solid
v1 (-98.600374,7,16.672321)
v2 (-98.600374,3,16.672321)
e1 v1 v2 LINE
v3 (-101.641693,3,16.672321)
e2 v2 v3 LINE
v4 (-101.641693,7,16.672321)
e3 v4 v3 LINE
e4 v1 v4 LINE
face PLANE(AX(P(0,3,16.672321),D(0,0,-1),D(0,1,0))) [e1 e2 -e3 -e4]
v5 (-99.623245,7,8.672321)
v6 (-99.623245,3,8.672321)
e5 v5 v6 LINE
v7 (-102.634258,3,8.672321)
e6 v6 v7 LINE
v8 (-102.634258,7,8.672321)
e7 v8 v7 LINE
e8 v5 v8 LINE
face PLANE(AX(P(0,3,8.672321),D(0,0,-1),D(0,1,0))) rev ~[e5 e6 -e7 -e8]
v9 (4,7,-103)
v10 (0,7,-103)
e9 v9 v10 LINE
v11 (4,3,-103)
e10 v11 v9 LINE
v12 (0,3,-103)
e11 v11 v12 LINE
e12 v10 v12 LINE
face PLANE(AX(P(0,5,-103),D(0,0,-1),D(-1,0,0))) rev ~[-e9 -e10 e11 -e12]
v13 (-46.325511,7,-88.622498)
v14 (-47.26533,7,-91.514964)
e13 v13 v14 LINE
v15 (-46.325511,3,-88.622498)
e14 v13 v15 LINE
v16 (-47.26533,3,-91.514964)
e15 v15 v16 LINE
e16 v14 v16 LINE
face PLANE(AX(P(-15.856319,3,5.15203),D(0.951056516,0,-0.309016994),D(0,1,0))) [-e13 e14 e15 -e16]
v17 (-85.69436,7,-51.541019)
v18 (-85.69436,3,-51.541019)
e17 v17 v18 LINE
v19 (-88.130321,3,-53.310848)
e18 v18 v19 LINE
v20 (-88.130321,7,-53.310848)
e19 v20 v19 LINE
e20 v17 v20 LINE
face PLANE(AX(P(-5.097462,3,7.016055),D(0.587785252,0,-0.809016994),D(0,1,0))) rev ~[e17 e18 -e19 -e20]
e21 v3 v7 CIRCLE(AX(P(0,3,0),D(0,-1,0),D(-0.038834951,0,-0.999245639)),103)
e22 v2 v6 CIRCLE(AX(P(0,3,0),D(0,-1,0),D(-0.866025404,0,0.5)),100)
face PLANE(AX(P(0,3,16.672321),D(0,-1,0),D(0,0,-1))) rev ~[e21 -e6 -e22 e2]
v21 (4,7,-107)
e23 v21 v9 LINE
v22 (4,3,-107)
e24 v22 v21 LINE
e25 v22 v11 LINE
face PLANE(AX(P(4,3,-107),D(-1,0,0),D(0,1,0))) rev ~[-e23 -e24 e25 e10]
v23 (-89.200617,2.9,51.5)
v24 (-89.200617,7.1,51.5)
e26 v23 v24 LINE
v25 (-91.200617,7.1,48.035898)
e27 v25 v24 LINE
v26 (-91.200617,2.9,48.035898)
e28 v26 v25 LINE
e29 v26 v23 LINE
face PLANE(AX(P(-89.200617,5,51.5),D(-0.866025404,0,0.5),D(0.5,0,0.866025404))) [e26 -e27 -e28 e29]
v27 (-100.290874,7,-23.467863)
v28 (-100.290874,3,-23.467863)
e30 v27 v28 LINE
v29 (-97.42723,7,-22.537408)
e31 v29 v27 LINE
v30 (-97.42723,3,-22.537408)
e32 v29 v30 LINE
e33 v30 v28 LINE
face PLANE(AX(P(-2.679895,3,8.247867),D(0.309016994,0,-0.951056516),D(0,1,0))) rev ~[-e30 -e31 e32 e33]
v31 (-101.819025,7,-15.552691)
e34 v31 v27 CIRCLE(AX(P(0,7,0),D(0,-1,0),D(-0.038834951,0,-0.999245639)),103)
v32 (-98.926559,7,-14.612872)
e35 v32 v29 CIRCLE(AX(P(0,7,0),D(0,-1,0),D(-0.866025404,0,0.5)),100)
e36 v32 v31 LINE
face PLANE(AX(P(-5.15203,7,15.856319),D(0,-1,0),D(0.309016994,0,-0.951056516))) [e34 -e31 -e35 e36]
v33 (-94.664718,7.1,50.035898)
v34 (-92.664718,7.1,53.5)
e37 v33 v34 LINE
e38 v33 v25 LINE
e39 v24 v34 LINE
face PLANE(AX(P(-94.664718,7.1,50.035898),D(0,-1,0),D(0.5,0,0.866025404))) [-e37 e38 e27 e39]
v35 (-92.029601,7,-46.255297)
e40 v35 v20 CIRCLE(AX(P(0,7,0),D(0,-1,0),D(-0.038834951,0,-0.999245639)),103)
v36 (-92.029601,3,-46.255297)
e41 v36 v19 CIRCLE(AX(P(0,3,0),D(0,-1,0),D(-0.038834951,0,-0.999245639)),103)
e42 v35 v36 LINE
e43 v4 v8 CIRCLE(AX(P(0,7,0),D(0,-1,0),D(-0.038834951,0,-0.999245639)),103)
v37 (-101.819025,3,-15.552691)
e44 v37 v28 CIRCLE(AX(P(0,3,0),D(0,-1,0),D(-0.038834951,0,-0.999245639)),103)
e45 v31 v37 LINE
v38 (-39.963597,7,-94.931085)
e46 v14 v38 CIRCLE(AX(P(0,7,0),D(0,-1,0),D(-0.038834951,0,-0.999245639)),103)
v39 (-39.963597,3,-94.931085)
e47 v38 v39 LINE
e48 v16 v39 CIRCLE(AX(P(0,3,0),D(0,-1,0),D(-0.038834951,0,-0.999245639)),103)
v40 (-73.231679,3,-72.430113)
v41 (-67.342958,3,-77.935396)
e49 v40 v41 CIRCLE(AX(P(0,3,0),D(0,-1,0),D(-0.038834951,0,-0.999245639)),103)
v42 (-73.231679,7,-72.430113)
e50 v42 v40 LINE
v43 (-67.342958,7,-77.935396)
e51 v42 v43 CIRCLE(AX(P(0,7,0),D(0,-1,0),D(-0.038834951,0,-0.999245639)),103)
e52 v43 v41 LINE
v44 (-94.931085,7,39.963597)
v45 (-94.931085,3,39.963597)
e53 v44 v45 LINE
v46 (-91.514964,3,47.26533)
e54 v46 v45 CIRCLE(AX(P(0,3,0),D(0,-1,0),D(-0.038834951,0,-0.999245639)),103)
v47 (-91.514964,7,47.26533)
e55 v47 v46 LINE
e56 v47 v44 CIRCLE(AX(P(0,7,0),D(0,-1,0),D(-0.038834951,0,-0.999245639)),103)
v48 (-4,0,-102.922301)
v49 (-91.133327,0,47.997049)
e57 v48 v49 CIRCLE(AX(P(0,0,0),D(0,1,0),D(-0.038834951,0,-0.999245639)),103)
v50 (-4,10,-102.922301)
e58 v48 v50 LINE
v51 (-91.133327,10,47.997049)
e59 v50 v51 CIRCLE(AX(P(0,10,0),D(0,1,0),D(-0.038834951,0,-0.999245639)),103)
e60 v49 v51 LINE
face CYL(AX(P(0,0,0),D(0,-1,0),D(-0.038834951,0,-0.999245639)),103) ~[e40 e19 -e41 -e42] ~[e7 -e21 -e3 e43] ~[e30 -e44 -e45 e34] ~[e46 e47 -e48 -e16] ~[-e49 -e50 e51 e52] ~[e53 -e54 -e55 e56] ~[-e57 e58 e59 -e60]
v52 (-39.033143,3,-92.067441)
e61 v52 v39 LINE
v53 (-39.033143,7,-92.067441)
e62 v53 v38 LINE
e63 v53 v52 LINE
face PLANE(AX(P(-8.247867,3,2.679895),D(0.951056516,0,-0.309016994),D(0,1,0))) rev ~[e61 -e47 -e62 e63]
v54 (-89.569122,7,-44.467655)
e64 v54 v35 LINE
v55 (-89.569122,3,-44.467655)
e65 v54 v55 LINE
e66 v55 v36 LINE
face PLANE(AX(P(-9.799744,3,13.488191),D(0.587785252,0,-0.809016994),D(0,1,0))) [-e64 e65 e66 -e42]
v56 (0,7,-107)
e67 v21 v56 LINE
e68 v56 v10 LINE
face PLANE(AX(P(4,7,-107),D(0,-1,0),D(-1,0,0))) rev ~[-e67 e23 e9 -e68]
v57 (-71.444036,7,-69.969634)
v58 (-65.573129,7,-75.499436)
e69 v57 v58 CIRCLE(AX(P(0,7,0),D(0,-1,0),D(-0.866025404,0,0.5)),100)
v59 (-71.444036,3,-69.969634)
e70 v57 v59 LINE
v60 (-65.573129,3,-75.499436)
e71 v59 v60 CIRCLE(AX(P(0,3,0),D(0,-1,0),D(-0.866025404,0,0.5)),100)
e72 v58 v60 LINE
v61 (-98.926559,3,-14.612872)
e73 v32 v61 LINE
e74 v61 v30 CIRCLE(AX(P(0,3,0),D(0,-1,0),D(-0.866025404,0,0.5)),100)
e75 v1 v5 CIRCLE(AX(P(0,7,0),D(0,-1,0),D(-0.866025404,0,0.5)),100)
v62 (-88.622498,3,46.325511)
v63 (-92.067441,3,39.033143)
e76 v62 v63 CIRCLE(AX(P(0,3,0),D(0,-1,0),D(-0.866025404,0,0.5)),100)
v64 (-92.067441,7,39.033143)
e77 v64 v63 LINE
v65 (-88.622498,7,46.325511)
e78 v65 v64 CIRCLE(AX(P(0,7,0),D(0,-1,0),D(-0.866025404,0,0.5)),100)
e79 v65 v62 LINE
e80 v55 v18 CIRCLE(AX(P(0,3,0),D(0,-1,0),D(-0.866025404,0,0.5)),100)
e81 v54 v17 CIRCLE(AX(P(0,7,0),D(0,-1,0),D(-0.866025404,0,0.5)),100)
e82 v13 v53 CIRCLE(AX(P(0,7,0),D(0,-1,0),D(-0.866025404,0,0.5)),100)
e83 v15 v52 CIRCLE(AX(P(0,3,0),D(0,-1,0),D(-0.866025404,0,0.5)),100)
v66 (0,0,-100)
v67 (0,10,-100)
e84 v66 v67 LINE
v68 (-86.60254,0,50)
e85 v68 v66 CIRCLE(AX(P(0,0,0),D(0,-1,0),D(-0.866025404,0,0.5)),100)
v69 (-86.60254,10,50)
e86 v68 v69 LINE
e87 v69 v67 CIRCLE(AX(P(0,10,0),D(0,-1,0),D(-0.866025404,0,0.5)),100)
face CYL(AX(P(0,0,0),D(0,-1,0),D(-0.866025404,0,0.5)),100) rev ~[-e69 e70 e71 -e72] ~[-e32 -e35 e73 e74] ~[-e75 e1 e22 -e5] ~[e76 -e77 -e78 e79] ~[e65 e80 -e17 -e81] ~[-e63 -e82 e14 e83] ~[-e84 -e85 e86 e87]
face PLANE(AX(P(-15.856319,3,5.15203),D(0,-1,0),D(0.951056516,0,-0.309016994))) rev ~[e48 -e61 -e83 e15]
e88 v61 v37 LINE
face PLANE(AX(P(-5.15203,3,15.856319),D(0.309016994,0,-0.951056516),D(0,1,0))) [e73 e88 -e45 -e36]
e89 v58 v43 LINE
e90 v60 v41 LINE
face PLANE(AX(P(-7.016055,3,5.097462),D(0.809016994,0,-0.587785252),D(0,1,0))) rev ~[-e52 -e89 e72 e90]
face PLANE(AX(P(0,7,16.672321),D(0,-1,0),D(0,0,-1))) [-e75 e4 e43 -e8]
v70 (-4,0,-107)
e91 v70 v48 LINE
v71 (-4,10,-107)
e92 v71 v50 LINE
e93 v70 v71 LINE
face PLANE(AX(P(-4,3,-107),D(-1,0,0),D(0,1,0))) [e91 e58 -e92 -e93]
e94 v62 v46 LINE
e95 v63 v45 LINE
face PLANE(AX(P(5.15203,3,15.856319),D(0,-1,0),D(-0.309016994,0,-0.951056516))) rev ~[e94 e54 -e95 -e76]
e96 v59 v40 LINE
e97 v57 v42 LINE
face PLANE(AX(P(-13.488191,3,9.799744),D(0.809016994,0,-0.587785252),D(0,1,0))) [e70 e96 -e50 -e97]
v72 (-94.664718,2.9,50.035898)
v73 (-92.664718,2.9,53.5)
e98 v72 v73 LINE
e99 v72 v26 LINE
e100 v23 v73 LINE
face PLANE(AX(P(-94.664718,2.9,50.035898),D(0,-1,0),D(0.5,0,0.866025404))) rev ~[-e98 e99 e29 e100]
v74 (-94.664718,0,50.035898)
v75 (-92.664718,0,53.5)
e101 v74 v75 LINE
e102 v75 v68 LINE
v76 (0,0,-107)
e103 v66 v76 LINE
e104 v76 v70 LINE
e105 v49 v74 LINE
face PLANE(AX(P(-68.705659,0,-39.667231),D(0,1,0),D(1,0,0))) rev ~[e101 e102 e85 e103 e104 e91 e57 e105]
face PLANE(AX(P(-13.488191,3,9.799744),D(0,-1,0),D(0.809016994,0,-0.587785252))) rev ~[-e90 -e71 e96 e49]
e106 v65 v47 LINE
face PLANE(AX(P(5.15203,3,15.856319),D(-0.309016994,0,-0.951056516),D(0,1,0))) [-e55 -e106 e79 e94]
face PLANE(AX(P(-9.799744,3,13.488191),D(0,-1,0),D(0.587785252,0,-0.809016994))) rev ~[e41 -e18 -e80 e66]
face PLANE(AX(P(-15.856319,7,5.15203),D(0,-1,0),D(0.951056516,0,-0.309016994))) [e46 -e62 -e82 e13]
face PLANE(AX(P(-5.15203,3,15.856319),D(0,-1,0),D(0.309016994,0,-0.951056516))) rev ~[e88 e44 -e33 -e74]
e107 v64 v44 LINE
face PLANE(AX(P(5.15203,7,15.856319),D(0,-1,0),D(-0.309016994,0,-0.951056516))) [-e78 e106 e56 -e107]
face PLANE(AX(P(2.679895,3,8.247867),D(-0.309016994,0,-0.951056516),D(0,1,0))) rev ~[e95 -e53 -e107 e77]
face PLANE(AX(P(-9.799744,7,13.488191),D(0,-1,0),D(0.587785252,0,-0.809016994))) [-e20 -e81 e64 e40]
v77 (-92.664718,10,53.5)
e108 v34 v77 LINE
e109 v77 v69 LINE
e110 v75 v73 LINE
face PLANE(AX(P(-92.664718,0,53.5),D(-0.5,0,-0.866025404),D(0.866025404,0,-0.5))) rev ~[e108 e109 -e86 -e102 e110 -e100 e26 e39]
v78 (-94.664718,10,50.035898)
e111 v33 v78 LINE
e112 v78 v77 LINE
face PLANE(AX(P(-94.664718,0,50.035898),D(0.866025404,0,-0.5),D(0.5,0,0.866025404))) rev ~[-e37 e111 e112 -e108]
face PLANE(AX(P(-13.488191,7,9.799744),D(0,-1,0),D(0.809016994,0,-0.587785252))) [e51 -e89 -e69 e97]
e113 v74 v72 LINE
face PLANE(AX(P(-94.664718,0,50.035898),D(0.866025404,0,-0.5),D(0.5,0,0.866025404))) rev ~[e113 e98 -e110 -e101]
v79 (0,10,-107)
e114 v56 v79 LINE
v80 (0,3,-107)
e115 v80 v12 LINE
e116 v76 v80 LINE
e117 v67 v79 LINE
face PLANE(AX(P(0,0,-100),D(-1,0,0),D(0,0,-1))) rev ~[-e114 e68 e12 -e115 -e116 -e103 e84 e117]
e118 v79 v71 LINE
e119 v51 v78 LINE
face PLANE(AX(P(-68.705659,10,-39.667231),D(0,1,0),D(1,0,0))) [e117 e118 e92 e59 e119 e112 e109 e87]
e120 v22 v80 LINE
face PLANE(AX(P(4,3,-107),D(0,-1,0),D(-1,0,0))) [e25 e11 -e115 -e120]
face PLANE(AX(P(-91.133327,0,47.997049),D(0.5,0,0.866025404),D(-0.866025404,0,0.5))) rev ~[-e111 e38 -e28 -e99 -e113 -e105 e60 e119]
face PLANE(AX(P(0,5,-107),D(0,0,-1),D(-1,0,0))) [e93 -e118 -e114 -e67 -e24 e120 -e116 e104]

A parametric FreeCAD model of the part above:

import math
import FreeCAD as App
import Part
import Sketcher
from FreeCAD import Vector
Q = App.Units.Quantity

doc = App.newDocument("Part")
body = doc.addObject("PartDesign::Body", "Body")

sketch1 = body.newObject("Sketcher::SketchObject", "Sketch")
sketch1.AttachmentSupport = (doc.getObject("XZ_Plane"), [""])
sketch1.MapMode = "FlatFace"
sketch1.addGeometry([
    Part.LineSegment(Vector(-4, -107, 0), Vector(-4, -102.922301, 0)),
    Part.ArcOfCircle(Part.Circle(Vector(0, 0, 0), Vector(0, 0, 1), 103), math.radians(152.225638), math.radians(267.774362)),
    Part.LineSegment(Vector(-91.133327, 47.997049, 0), Vector(-94.664718, 50.035898, 0)),
    Part.LineSegment(Vector(-94.664718, 50.035898, 0), Vector(-92.664718, 53.5, 0)),
    Part.LineSegment(Vector(-92.664718, 53.5, 0), Vector(-86.60254, 50, 0)),
    Part.ArcOfCircle(Part.Circle(Vector(0, 0, 0), Vector(0, 0, 1), 100), math.radians(150), math.radians(270)),
    Part.LineSegment(Vector(0, -100, 0), Vector(0, -107, 0)),
    Part.LineSegment(Vector(0, -107, 0), Vector(-4, -107, 0)),
], False)
sketch1.addConstraint([
    Sketcher.Constraint("Coincident", 0, 2, 1, 2),
    Sketcher.Constraint("Coincident", 1, 1, 2, 1),
    Sketcher.Constraint("Coincident", 2, 2, 3, 1),
    Sketcher.Constraint("Coincident", 3, 2, 4, 1),
    Sketcher.Constraint("Coincident", 4, 2, 5, 1),
    Sketcher.Constraint("Coincident", 5, 2, 6, 1),
    Sketcher.Constraint("Coincident", 6, 2, 7, 1),
    Sketcher.Constraint("Coincident", 7, 2, 0, 1),
    Sketcher.Constraint("Vertical", 0),
    Sketcher.Constraint("Vertical", 6),
    Sketcher.Constraint("Horizontal", 7),
    Sketcher.Constraint("Coincident", 1, 3, -1, 1),
    Sketcher.Constraint("Coincident", 5, 3, -1, 1),
    Sketcher.Constraint("PointOnObject", 5, 2, -2),
    Sketcher.Constraint("Perpendicular", 2, 3),
    Sketcher.Constraint("Perpendicular", 3, 4),
    Sketcher.Constraint("Radius", 1, Q("103 mm")),
    Sketcher.Constraint("Radius", 5, Q("100 mm")),
    Sketcher.Constraint("DistanceX", 7, 2, 7, 1, Q("4 mm")),
    Sketcher.Constraint("DistanceY", 6, 2, 6, 1, Q("7 mm")),
    Sketcher.Constraint("Angle", 2, Q("150 deg")),
    Sketcher.Constraint("Distance", 3, Q("4 mm")),
    Sketcher.Constraint("Distance", 4, Q("7 mm")),
    Sketcher.Constraint("DistanceY", -1, 1, 4, 2, Q("50 mm")),
])
pad1 = body.newObject("PartDesign::Pad", "Pad")
pad1.Profile = sketch1
pad1.Length = 10
pad1.Reversed = True

sketch2 = body.newObject("Sketcher::SketchObject", "Sketch001")
sketch2.Placement = App.Placement(Vector(-92.664718, 0, 53.5), App.Rotation(Vector(0.5, 0, 0.866025404), Vector(0, 1, 0), Vector(-0.866025404, 0, 0.5), "ZXY"))
sketch2.addGeometry([
    Part.LineSegment(Vector(-4, 7.1, 0), Vector(-4, 2.9, 0)),
    Part.LineSegment(Vector(-4, 2.9, 0), Vector(4, 2.9, 0)),
    Part.LineSegment(Vector(4, 2.9, 0), Vector(4, 7.1, 0)),
    Part.LineSegment(Vector(4, 7.1, 0), Vector(-4, 7.1, 0)),
], False)
sketch2.addConstraint([
    Sketcher.Constraint("Coincident", 0, 2, 1, 1),
    Sketcher.Constraint("Coincident", 1, 2, 2, 1),
    Sketcher.Constraint("Coincident", 2, 2, 3, 1),
    Sketcher.Constraint("Coincident", 3, 2, 0, 1),
    Sketcher.Constraint("Vertical", 0),
    Sketcher.Constraint("Horizontal", 1),
    Sketcher.Constraint("Vertical", 2),
    Sketcher.Constraint("Horizontal", 3),
    Sketcher.Constraint("DistanceX", 1, 1, 1, 2, Q("8 mm")),
    Sketcher.Constraint("DistanceY", 0, 2, 0, 1, Q("4.2 mm")),
    Sketcher.Constraint("DistanceX", 0, 2, -1, 1, Q("4 mm")),
    Sketcher.Constraint("DistanceY", -1, 1, 0, 2, Q("2.9 mm")),
])
pocket1 = body.newObject("PartDesign::Pocket", "Pocket")
pocket1.Profile = sketch2
pocket1.Length = 4

sketch3 = body.newObject("Sketcher::SketchObject", "Sketch002")
sketch3.AttachmentSupport = (doc.getObject("XY_Plane"), [""])
sketch3.MapMode = "FlatFace"
sketch3.AttachmentOffset = App.Placement(Vector(0, 0, -107), App.Rotation())
sketch3.addGeometry([
    Part.LineSegment(Vector(4, 7, 0), Vector(4, 3, 0)),
    Part.LineSegment(Vector(4, 3, 0), Vector(-4, 3, 0)),
    Part.LineSegment(Vector(-4, 3, 0), Vector(-4, 7, 0)),
    Part.LineSegment(Vector(-4, 7, 0), Vector(4, 7, 0)),
], False)
sketch3.addConstraint([
    Sketcher.Constraint("Coincident", 0, 2, 1, 1),
    Sketcher.Constraint("Coincident", 1, 2, 2, 1),
    Sketcher.Constraint("Coincident", 2, 2, 3, 1),
    Sketcher.Constraint("Coincident", 3, 2, 0, 1),
    Sketcher.Constraint("Vertical", 0),
    Sketcher.Constraint("Horizontal", 1),
    Sketcher.Constraint("Vertical", 2),
    Sketcher.Constraint("Horizontal", 3),
    Sketcher.Constraint("DistanceX", 1, 2, 1, 1, Q("8 mm")),
    Sketcher.Constraint("DistanceY", 0, 2, 0, 1, Q("4 mm")),
    Sketcher.Constraint("DistanceX", -1, 1, 0, 2, Q("4 mm")),
    Sketcher.Constraint("DistanceY", -1, 1, 0, 2, Q("3 mm")),
])
pad2 = body.newObject("PartDesign::Pad", "Pad001")
pad2.Profile = sketch3
pad2.Length = 4

sketch4 = body.newObject("Sketcher::SketchObject", "Sketch003")
sketch4.AttachmentSupport = (doc.getObject("YZ_Plane"), [""])
sketch4.MapMode = "FlatFace"
sketch4.addGeometry([
    Part.LineSegment(Vector(7, 16.672321, 0), Vector(3, 16.672321, 0)),
    Part.LineSegment(Vector(3, 16.672321, 0), Vector(3, 8.672321, 0)),
    Part.LineSegment(Vector(3, 8.672321, 0), Vector(7, 8.672321, 0)),
    Part.LineSegment(Vector(7, 8.672321, 0), Vector(7, 16.672321, 0)),
], False)
sketch4.addConstraint([
    Sketcher.Constraint("Coincident", 0, 2, 1, 1),
    Sketcher.Constraint("Coincident", 1, 2, 2, 1),
    Sketcher.Constraint("Coincident", 2, 2, 3, 1),
    Sketcher.Constraint("Coincident", 3, 2, 0, 1),
    Sketcher.Constraint("Horizontal", 0),
    Sketcher.Constraint("Vertical", 1),
    Sketcher.Constraint("Horizontal", 2),
    Sketcher.Constraint("Vertical", 3),
    Sketcher.Constraint("DistanceX", 0, 2, 0, 1, Q("4 mm")),
    Sketcher.Constraint("DistanceY", 1, 2, 1, 1, Q("8 mm")),
    Sketcher.Constraint("DistanceX", -1, 1, 0, 2, Q("3 mm")),
    Sketcher.Constraint("DistanceY", -1, 1, 0, 2, Q("16.672321 mm")),
])
pocket2 = body.newObject("PartDesign::Pocket", "Pocket001")
pocket2.Profile = sketch4
pocket2.Type = "ThroughAll"
doc.recompute()

polarpattern = body.newObject("PartDesign::PolarPattern", "PolarPattern")
polarpattern.Originals = [pocket2]
polarpattern.Axis = (doc.getObject("Y_Axis"), [""])
polarpattern.Angle = 72
polarpattern.Occurrences = 5
polarpattern.Reversed = True
body.Tip = polarpattern
doc.recompute()

polarpattern2 = body.newObject("PartDesign::PolarPattern", "PolarPattern001")
polarpattern2.Originals = [pocket2]
polarpattern2.Axis = (doc.getObject("Y_Axis"), [""])
polarpattern2.Angle = 72
polarpattern2.Occurrences = 5
body.Tip = polarpattern2

doc.recompute()
